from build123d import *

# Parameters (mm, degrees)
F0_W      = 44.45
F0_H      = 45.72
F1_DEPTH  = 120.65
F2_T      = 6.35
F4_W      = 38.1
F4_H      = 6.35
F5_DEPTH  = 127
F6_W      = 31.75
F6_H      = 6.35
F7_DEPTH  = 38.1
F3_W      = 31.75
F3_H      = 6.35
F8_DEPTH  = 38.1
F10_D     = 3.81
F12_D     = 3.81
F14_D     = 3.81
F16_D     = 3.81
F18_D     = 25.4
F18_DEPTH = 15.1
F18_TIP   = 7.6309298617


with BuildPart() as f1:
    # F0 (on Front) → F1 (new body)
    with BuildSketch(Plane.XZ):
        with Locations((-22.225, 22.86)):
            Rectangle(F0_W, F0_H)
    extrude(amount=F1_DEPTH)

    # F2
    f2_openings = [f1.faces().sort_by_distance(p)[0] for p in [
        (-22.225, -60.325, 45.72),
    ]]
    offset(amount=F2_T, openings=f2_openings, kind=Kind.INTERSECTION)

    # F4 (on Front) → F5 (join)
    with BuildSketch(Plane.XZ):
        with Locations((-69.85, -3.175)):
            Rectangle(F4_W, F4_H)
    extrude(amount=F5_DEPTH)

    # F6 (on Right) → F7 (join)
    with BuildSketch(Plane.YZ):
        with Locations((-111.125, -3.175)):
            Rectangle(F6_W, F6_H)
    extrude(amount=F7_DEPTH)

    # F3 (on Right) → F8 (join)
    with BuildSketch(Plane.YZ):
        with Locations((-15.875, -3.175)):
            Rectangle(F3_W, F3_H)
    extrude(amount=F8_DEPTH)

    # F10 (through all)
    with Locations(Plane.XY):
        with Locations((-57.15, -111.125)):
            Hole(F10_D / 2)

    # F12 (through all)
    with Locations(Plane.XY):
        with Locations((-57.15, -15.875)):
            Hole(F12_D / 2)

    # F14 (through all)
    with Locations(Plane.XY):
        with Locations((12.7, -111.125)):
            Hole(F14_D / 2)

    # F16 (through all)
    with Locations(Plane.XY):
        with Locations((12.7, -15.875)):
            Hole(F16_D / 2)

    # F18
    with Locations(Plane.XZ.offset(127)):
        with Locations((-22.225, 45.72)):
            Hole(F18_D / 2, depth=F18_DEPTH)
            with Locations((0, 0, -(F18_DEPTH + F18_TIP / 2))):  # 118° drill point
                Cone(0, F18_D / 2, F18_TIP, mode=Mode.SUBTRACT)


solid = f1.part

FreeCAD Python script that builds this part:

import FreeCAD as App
import Part
import Sketcher

V = App.Vector
Q = App.Units.Quantity


def faces_at(feature, points):
    """Names of the faces that lie closest to the given points."""
    faces = feature.Shape.Faces
    near = lambda p: min(range(len(faces)), key=lambda i: faces[i].distToShape(Part.Vertex(*p))[0])
    return sorted({f"Face{near(p) + 1}" for p in points})


def add_polygon(sketch, points):
    """Adds a closed chain of lines whose ends are joined by coincident constraints."""
    first, n = sketch.GeometryCount, len(points)
    for a, b in zip(points, points[1:] + points[:1]):
        sketch.addGeometry(Part.LineSegment(App.Vector(*a, 0), App.Vector(*b, 0)), False)
    for i in range(n):
        sketch.addConstraint(Sketcher.Constraint("Coincident", first + i, 2, first + (i + 1) % n, 1))

doc = App.newDocument("Part")
params = doc.addObject("Spreadsheet::Sheet", "Params")
for row, (alias, value) in enumerate([
    ("sketch1_height", "1.8 in"),
    ("sketch1_width", "1.75 in"),
    ("pad1_length", "4.75 in"),
    ("thickness_wall", "0.25 in"),
    ("sketch2_width", "1.5 in"),
    ("sketch2_height", "0.25 in"),
    ("pad2_length", "5 in"),
    ("sketch3_width", "1.25 in"),
    ("sketch3_height", "0.25 in"),
    ("pad3_length", "1.5 in"),
    ("sketch4_width", "1.25 in"),
    ("sketch4_height", "0.25 in"),
    ("pad4_length", "1.5 in"),
    ("sketch5_diameter", "0.15 in"),
    ("hole_diameter", "0.15 in"),
    ("sketch6_diameter", "0.15 in"),
    ("hole2_diameter", "0.15 in"),
    ("sketch7_diameter", "0.15 in"),
    ("hole3_diameter", "0.15 in"),
    ("sketch8_diameter", "0.15 in"),
    ("hole4_diameter", "0.15 in"),
    ("sketch9_diameter", "1 in"),
    ("hole5_diameter", "1 in"),
    ("hole5_depth", "15.1 mm"),
], start=1):
    params.set(f"A{row}", alias)
    params.set(f"B{row}", "=" + value)
    params.setAlias(f"B{row}", alias)

body = doc.addObject("PartDesign::Body", "Body")

sketch1 = body.newObject("Sketcher::SketchObject", "Sketch")
sketch1.AttachmentSupport = (doc.getObject("XZ_Plane"), [""])
sketch1.MapMode = "FlatFace"
add_polygon(sketch1, [(-44, 46), (-44, 0), (0, 0), (0, 46)])
sketch1.addConstraint([
    Sketcher.Constraint("Vertical", 0),
    Sketcher.Constraint("Horizontal", 1),
    Sketcher.Constraint("Vertical", 2),
    Sketcher.Constraint("Horizontal", 3),
    Sketcher.Constraint("Coincident", 1, 2, -1, 1),
    Sketcher.Constraint("DistanceY", 0, 2, 0, 1, Q("1.8 in")),
    Sketcher.Constraint("DistanceX", 1, 1, 1, 2, Q("1.75 in")),
])
sketch1.setExpression("Constraints[9]", "Params.sketch1_height")
sketch1.setExpression("Constraints[10]", "Params.sketch1_width")
pad1 = body.newObject("PartDesign::Pad", "Pad")
pad1.Profile = sketch1
pad1.setExpression("Length", "Params.pad1_length")
doc.recompute()

thickness = body.newObject("PartDesign::Thickness", "Thickness")
thickness.Base = (pad1, faces_at(pad1, [(-22.225, -60.325, 45.72)]))
thickness.setExpression("Value", "Params.thickness_wall")
thickness.Reversed = False
thickness.Join = "Intersection"

sketch2 = body.newObject("Sketcher::SketchObject", "Sketch001")
sketch2.AttachmentSupport = (doc.getObject("XZ_Plane"), [""])
sketch2.MapMode = "FlatFace"
add_polygon(sketch2, [(-89, 0), (-89, -6), (-51, -6), (-51, 0)])
sketch2.addConstraint([
    Sketcher.Constraint("Vertical", 0),
    Sketcher.Constraint("Horizontal", 1),
    Sketcher.Constraint("Vertical", 2),
    Sketcher.Constraint("Horizontal", 3),
    Sketcher.Constraint("PointOnObject", 2, 2, -1),
    Sketcher.Constraint("DistanceX", 1, 1, 1, 2, Q("1.5 in")),
    Sketcher.Constraint("DistanceX", 1, 2, -1, 1, Q("2 in")),
    Sketcher.Constraint("DistanceY", 0, 2, 0, 1, Q("0.25 in")),
])
sketch2.setExpression("Constraints[9]", "Params.sketch2_width")
sketch2.setExpression("Constraints[11]", "Params.sketch2_height")
pad2 = body.newObject("PartDesign::Pad", "Pad001")
pad2.Profile = sketch2
pad2.setExpression("Length", "Params.pad2_length")

sketch3 = body.newObject("Sketcher::SketchObject", "Sketch002")
sketch3.AttachmentSupport = (doc.getObject("YZ_Plane"), [""])
sketch3.MapMode = "FlatFace"
add_polygon(sketch3, [(-127, 0), (-127, -6), (-95, -6), (-95, 0)])
sketch3.addConstraint([
    Sketcher.Constraint("Vertical", 0),
    Sketcher.Constraint("Horizontal", 1),
    Sketcher.Constraint("Vertical", 2),
    Sketcher.Constraint("Horizontal", 3),
    Sketcher.Constraint("PointOnObject", 2, 2, -1),
    Sketcher.Constraint("DistanceX", 0, 2, -1, 1, Q("5 in")),
    Sketcher.Constraint("DistanceX", 1, 1, 1, 2, Q("1.25 in")),
    Sketcher.Constraint("DistanceY", 0, 2, 0, 1, Q("0.25 in")),
])
sketch3.setExpression("Constraints[10]", "Params.sketch3_width")
sketch3.setExpression("Constraints[11]", "Params.sketch3_height")
pad3 = body.newObject("PartDesign::Pad", "Pad002")
pad3.Profile = sketch3
pad3.setExpression("Length", "Params.pad3_length")

sketch4 = body.newObject("Sketcher::SketchObject", "Sketch003")
sketch4.AttachmentSupport = (doc.getObject("YZ_Plane"), [""])
sketch4.MapMode = "FlatFace"
add_polygon(sketch4, [(-32, 0), (-32, -6), (0, -6), (0, 0)])
sketch4.addConstraint([
    Sketcher.Constraint("Vertical", 0),
    Sketcher.Constraint("Horizontal", 1),
    Sketcher.Constraint("Vertical", 2),
    Sketcher.Constraint("Horizontal", 3),
    Sketcher.Constraint("Coincident", 2, 2, -1, 1),
    Sketcher.Constraint("DistanceX", 1, 1, 1, 2, Q("1.25 in")),
    Sketcher.Constraint("DistanceY", 0, 2, 0, 1, Q("0.25 in")),
])
sketch4.setExpression("Constraints[9]", "Params.sketch4_width")
sketch4.setExpression("Constraints[10]", "Params.sketch4_height")
pad4 = body.newObject("PartDesign::Pad", "Pad003")
pad4.Profile = sketch4
pad4.setExpression("Length", "Params.pad4_length")

sketch5 = body.newObject("Sketcher::SketchObject", "Sketch004")
sketch5.AttachmentSupport = (doc.getObject("XY_Plane"), [""])
sketch5.MapMode = "FlatFace"
sketch5.addGeometry(Part.Circle(V(-57.1, -111.1, 0), V(0, 0, 1), 1.9), False)
sketch5.addConstraint([
    Sketcher.Constraint("Diameter", 0, Q("0.15 in")),
    Sketcher.Constraint("DistanceX", 0, 3, -1, 1, Q("2.25 in")),
    Sketcher.Constraint("DistanceY", 0, 3, -1, 1, Q("4.375 in")),
])
sketch5.setExpression("Constraints[0]", "Params.sketch5_diameter")
doc.recompute()
hole = body.newObject("PartDesign::Hole", "Hole")
hole.Profile = sketch5
hole.ThreadType = "None"
hole.setExpression("Diameter", "Params.hole_diameter")
hole.DepthType = "ThroughAll"

sketch6 = body.newObject("Sketcher::SketchObject", "Sketch005")
sketch6.AttachmentSupport = (doc.getObject("XY_Plane"), [""])
sketch6.MapMode = "FlatFace"
sketch6.addGeometry(Part.Circle(V(-57.1, -15.9, 0), V(0, 0, 1), 1.9), False)
sketch6.addConstraint([
    Sketcher.Constraint("Diameter", 0, Q("0.15 in")),
    Sketcher.Constraint("DistanceX", 0, 3, -1, 1, Q("2.25 in")),
    Sketcher.Constraint("DistanceY", 0, 3, -1, 1, Q("0.625 in")),
])
sketch6.setExpression("Constraints[0]", "Params.sketch6_diameter")
doc.recompute()
hole2 = body.newObject("PartDesign::Hole", "Hole001")
hole2.Profile = sketch6
hole2.ThreadType = "None"
hole2.setExpression("Diameter", "Params.hole2_diameter")
hole2.DepthType = "ThroughAll"

sketch7 = body.newObject("Sketcher::SketchObject", "Sketch006")
sketch7.AttachmentSupport = (doc.getObject("XY_Plane"), [""])
sketch7.MapMode = "FlatFace"
sketch7.addGeometry(Part.Circle(V(12.7, -111.1, 0), V(0, 0, 1), 1.9), False)
sketch7.addConstraint([
    Sketcher.Constraint("Diameter", 0, Q("0.15 in")),
    Sketcher.Constraint("DistanceX", -1, 1, 0, 3, Q("0.5 in")),
    Sketcher.Constraint("DistanceY", 0, 3, -1, 1, Q("4.375 in")),
])
sketch7.setExpression("Constraints[0]", "Params.sketch7_diameter")
doc.recompute()
hole3 = body.newObject("PartDesign::Hole", "Hole002")
hole3.Profile = sketch7
hole3.ThreadType = "None"
hole3.setExpression("Diameter", "Params.hole3_diameter")
hole3.DepthType = "ThroughAll"

sketch8 = body.newObject("Sketcher::SketchObject", "Sketch007")
sketch8.AttachmentSupport = (doc.getObject("XY_Plane"), [""])
sketch8.MapMode = "FlatFace"
sketch8.addGeometry(Part.Circle(V(12.7, -15.9, 0), V(0, 0, 1), 1.9), False)
sketch8.addConstraint([
    Sketcher.Constraint("Diameter", 0, Q("0.15 in")),
    Sketcher.Constraint("DistanceX", -1, 1, 0, 3, Q("0.5 in")),
    Sketcher.Constraint("DistanceY", 0, 3, -1, 1, Q("0.625 in")),
])
sketch8.setExpression("Constraints[0]", "Params.sketch8_diameter")
doc.recompute()
hole4 = body.newObject("PartDesign::Hole", "Hole003")
hole4.Profile = sketch8
hole4.ThreadType = "None"
hole4.setExpression("Diameter", "Params.hole4_diameter")
hole4.DepthType = "ThroughAll"

sketch9 = body.newObject("Sketcher::SketchObject", "Sketch008")
sketch9.AttachmentSupport = (doc.getObject("XZ_Plane"), [""])
sketch9.MapMode = "FlatFace"
sketch9.AttachmentOffset = App.Placement(V(0, 0, 5 * 25.4), App.Rotation())
sketch9.addGeometry(Part.Circle(V(-22, 46, 0), V(0, 0, 1), 13), False)
sketch9.addConstraint([
    Sketcher.Constraint("Diameter", 0, Q("1 in")),
    Sketcher.Constraint("DistanceY", -1, 1, 0, 3, Q("1.8 in")),
    Sketcher.Constraint("DistanceX", 0, 3, -1, 1, Q("0.875 in")),
])
sketch9.setExpression("Constraints[0]", "Params.sketch9_diameter")
doc.recompute()
hole5 = body.newObject("PartDesign::Hole", "Hole004")
hole5.Profile = sketch9
hole5.ThreadType = "None"
hole5.setExpression("Diameter", "Params.hole5_diameter")
hole5.DepthType = "Dimension"
hole5.setExpression("Depth", "Params.hole5_depth")
hole5.DrillPoint = "Angled"
hole5.DrillPointAngle = 118

doc.recompute()
